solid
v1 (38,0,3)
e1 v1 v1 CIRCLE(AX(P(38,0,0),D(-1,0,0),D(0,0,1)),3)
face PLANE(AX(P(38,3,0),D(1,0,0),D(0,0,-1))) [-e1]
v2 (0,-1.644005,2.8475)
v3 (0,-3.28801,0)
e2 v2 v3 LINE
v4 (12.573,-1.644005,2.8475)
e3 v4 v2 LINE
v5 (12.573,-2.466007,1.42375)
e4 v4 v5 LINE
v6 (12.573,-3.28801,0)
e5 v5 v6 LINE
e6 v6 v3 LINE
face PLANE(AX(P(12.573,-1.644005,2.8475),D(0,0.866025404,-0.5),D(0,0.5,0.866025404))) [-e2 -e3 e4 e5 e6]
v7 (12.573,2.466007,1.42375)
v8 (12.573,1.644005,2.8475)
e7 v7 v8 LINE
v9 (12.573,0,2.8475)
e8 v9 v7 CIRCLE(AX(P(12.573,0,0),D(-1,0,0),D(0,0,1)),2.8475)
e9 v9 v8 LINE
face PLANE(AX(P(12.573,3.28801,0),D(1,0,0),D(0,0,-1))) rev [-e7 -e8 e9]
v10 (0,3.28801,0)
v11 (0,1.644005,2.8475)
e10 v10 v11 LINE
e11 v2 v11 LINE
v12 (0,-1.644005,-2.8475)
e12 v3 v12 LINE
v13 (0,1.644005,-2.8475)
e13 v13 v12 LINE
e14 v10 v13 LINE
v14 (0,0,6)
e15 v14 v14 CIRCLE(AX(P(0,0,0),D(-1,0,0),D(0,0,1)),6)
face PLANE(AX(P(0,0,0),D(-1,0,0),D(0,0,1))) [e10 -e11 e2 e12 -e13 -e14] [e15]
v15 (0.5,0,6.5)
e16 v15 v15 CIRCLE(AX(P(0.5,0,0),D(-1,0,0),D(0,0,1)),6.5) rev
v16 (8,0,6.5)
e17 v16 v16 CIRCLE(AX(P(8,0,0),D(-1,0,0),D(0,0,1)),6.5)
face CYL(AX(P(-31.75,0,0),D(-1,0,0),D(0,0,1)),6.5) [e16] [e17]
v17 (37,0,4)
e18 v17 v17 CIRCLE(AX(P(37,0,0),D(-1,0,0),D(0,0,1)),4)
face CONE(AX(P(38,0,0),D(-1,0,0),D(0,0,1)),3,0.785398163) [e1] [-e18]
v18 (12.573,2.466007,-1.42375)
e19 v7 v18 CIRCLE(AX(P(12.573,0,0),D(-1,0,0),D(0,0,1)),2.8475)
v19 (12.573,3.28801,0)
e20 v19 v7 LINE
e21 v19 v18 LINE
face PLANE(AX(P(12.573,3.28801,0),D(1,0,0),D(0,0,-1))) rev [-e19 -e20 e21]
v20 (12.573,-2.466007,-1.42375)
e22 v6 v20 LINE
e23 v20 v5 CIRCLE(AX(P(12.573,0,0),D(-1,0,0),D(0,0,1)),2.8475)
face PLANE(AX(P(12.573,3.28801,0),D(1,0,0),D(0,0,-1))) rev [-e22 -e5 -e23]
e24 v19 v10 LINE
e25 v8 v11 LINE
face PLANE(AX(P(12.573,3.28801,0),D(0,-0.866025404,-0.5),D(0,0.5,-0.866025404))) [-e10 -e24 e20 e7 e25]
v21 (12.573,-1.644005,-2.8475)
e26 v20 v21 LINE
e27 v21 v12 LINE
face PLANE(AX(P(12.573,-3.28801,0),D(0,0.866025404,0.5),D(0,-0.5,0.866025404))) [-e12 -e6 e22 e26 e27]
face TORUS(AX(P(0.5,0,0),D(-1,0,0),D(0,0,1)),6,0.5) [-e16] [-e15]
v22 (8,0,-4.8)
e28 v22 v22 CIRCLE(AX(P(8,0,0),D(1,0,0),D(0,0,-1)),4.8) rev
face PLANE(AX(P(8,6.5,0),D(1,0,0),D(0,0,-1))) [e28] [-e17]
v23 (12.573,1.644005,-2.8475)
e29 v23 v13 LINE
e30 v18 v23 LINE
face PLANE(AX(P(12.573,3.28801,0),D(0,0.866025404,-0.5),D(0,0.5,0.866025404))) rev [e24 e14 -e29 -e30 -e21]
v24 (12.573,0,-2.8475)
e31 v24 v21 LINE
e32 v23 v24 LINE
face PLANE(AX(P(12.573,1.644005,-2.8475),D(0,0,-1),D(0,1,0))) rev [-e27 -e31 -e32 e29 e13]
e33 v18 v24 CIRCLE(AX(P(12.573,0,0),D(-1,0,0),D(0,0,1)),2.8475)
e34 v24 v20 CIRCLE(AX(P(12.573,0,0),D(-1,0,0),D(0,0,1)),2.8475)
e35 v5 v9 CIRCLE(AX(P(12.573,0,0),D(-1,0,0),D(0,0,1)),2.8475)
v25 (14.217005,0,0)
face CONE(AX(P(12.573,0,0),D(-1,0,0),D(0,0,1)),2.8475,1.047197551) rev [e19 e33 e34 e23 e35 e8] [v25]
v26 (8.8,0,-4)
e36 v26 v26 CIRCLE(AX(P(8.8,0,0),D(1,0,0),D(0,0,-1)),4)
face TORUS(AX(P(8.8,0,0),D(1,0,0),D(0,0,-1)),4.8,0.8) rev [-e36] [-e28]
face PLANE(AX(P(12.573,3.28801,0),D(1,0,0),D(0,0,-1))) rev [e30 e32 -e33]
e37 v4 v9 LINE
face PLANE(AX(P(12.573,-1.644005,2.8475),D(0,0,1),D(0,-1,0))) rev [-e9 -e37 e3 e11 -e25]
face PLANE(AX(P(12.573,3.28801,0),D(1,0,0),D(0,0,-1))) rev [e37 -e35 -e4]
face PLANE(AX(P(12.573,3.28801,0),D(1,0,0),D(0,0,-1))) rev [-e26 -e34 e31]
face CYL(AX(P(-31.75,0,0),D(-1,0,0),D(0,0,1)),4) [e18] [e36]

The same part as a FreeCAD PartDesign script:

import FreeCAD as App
import Part
import Sketcher

V = App.Vector
Q = App.Units.Quantity


def edges_at(feature, points):
    """Names of the edges that pass closest to the given points."""
    edges = feature.Shape.Edges
    near = lambda p: min(range(len(edges)), key=lambda i: edges[i].distToShape(Part.Vertex(*p))[0])
    return sorted({f"Edge{near(p) + 1}" for p in points})


def add_polygon(sketch, points):
    """Adds a closed chain of lines whose ends are joined by coincident constraints."""
    first, n = sketch.GeometryCount, len(points)
    for a, b in zip(points, points[1:] + points[:1]):
        sketch.addGeometry(Part.LineSegment(App.Vector(*a, 0), App.Vector(*b, 0)), False)
    for i in range(n):
        sketch.addConstraint(Sketcher.Constraint("Coincident", first + i, 2, first + (i + 1) % n, 1))

doc = App.newDocument("Part")
body = doc.addObject("PartDesign::Body", "Body")

sketch1 = doc.addObject("Sketcher::SketchObject", "Sketch")
body.addObject(sketch1)
sketch1.AttachmentSupport = (doc.XY_Plane, [""])
sketch1.MapMode = "FlatFace"
add_polygon(sketch1, [(0, 6.5), (0, 0), (38, 0), (38, 3), (37, 4), (8, 4), (8, 6.5)])
sketch1.addConstraint([
    Sketcher.Constraint("Vertical", 0),
    Sketcher.Constraint("Horizontal", 1),
    Sketcher.Constraint("Vertical", 2),
    Sketcher.Constraint("Horizontal", 4),
    Sketcher.Constraint("Vertical", 5),
    Sketcher.Constraint("Horizontal", 6),
    Sketcher.Constraint("Coincident", 0, 2, -1, 1),
    Sketcher.Constraint("DistanceX", 1, 1, 1, 2, Q("38 mm")),
    Sketcher.Constraint("DistanceX", 4, 2, 4, 1, Q("29 mm")),
    Sketcher.Constraint("DistanceX", 6, 2, 6, 1, Q("8 mm")),
    Sketcher.Constraint("DistanceY", 2, 1, 2, 2, Q("3 mm")),
    Sketcher.Constraint("Angle", 3, Q("135 deg")),
    Sketcher.Constraint("DistanceY", 0, 2, 0, 1, Q("6.5 mm")),
])
revolution = doc.addObject("PartDesign::Revolution", "Revolution")
body.addObject(revolution)
revolution.Profile = sketch1
revolution.ReferenceAxis = (sketch1, ["H_Axis"])
revolution.Angle = 360
doc.recompute()

fillet = doc.addObject("PartDesign::Fillet", "Fillet")
body.addObject(fillet)
fillet.Base = (revolution, edges_at(revolution, [(8, -4, 0)]))
fillet.Radius = 0.8
doc.recompute()

fillet2 = doc.addObject("PartDesign::Fillet", "Fillet001")
body.addObject(fillet2)
fillet2.Base = (fillet, edges_at(fillet, [(0, -6.5, 0)]))
fillet2.Radius = 0.5

sketch2 = doc.addObject("Sketcher::SketchObject", "Sketch001")
body.addObject(sketch2)
sketch2.AttachmentSupport = (doc.XY_Plane, [""])
sketch2.MapMode = "FlatFace"
add_polygon(sketch2, [(12.573, 2.8475), (0, 2.8475), (0, 0), (14.217005, 0)])
sketch2.addConstraint([
    Sketcher.Constraint("Horizontal", 0),
    Sketcher.Constraint("Vertical", 1),
    Sketcher.Constraint("Horizontal", 2),
    Sketcher.Constraint("Coincident", 1, 2, -1, 1),
    Sketcher.Constraint("Angle", 3, Q("120 deg")),
    Sketcher.Constraint("DistanceX", 0, 2, 0, 1, Q("12.573 mm")),
    Sketcher.Constraint("DistanceY", 1, 2, 1, 1, Q("2.8475 mm")),
])
groove = doc.addObject("PartDesign::Groove", "Groove")
body.addObject(groove)
groove.Profile = sketch2
groove.ReferenceAxis = (sketch2, ["H_Axis"])
groove.Angle = 360

sketch3 = doc.addObject("Sketcher::SketchObject", "Sketch002")
body.addObject(sketch3)
sketch3.AttachmentSupport = (doc.YZ_Plane, [""])
sketch3.MapMode = "FlatFace"
add_polygon(sketch3, [(3.28801, 0), (1.644005, -2.8475), (-1.644005, -2.8475), (-3.28801, 0), (-1.644005, 2.8475), (1.644005, 2.8475)])
sketch3.addConstraint([
    Sketcher.Constraint("Horizontal", 1),
    Sketcher.Constraint("Horizontal", 4),
    Sketcher.Constraint("Symmetric", 0, 2, 3, 2, -1, 1),
    Sketcher.Constraint("Symmetric", 2, 2, 5, 2, -1, 1),
    Sketcher.Constraint("PointOnObject", 2, 2, -1),
    Sketcher.Constraint("Parallel", 2, 5),
    Sketcher.Constraint("Vertical", 1, 2, 3, 2),
    Sketcher.Constraint("Angle", 0, Q("-120 deg")),
    Sketcher.Constraint("DistanceY", 1, 2, 3, 2, Q("5.695 mm")),
    Sketcher.Constraint("DistanceX", 1, 2, 1, 1, Q("3.28801 mm")),
])
pocket1 = doc.addObject("PartDesign::Pocket", "Pocket")
body.addObject(pocket1)
pocket1.Profile = sketch3
pocket1.Length = 12.573
pocket1.Reversed = True

doc.recompute()
